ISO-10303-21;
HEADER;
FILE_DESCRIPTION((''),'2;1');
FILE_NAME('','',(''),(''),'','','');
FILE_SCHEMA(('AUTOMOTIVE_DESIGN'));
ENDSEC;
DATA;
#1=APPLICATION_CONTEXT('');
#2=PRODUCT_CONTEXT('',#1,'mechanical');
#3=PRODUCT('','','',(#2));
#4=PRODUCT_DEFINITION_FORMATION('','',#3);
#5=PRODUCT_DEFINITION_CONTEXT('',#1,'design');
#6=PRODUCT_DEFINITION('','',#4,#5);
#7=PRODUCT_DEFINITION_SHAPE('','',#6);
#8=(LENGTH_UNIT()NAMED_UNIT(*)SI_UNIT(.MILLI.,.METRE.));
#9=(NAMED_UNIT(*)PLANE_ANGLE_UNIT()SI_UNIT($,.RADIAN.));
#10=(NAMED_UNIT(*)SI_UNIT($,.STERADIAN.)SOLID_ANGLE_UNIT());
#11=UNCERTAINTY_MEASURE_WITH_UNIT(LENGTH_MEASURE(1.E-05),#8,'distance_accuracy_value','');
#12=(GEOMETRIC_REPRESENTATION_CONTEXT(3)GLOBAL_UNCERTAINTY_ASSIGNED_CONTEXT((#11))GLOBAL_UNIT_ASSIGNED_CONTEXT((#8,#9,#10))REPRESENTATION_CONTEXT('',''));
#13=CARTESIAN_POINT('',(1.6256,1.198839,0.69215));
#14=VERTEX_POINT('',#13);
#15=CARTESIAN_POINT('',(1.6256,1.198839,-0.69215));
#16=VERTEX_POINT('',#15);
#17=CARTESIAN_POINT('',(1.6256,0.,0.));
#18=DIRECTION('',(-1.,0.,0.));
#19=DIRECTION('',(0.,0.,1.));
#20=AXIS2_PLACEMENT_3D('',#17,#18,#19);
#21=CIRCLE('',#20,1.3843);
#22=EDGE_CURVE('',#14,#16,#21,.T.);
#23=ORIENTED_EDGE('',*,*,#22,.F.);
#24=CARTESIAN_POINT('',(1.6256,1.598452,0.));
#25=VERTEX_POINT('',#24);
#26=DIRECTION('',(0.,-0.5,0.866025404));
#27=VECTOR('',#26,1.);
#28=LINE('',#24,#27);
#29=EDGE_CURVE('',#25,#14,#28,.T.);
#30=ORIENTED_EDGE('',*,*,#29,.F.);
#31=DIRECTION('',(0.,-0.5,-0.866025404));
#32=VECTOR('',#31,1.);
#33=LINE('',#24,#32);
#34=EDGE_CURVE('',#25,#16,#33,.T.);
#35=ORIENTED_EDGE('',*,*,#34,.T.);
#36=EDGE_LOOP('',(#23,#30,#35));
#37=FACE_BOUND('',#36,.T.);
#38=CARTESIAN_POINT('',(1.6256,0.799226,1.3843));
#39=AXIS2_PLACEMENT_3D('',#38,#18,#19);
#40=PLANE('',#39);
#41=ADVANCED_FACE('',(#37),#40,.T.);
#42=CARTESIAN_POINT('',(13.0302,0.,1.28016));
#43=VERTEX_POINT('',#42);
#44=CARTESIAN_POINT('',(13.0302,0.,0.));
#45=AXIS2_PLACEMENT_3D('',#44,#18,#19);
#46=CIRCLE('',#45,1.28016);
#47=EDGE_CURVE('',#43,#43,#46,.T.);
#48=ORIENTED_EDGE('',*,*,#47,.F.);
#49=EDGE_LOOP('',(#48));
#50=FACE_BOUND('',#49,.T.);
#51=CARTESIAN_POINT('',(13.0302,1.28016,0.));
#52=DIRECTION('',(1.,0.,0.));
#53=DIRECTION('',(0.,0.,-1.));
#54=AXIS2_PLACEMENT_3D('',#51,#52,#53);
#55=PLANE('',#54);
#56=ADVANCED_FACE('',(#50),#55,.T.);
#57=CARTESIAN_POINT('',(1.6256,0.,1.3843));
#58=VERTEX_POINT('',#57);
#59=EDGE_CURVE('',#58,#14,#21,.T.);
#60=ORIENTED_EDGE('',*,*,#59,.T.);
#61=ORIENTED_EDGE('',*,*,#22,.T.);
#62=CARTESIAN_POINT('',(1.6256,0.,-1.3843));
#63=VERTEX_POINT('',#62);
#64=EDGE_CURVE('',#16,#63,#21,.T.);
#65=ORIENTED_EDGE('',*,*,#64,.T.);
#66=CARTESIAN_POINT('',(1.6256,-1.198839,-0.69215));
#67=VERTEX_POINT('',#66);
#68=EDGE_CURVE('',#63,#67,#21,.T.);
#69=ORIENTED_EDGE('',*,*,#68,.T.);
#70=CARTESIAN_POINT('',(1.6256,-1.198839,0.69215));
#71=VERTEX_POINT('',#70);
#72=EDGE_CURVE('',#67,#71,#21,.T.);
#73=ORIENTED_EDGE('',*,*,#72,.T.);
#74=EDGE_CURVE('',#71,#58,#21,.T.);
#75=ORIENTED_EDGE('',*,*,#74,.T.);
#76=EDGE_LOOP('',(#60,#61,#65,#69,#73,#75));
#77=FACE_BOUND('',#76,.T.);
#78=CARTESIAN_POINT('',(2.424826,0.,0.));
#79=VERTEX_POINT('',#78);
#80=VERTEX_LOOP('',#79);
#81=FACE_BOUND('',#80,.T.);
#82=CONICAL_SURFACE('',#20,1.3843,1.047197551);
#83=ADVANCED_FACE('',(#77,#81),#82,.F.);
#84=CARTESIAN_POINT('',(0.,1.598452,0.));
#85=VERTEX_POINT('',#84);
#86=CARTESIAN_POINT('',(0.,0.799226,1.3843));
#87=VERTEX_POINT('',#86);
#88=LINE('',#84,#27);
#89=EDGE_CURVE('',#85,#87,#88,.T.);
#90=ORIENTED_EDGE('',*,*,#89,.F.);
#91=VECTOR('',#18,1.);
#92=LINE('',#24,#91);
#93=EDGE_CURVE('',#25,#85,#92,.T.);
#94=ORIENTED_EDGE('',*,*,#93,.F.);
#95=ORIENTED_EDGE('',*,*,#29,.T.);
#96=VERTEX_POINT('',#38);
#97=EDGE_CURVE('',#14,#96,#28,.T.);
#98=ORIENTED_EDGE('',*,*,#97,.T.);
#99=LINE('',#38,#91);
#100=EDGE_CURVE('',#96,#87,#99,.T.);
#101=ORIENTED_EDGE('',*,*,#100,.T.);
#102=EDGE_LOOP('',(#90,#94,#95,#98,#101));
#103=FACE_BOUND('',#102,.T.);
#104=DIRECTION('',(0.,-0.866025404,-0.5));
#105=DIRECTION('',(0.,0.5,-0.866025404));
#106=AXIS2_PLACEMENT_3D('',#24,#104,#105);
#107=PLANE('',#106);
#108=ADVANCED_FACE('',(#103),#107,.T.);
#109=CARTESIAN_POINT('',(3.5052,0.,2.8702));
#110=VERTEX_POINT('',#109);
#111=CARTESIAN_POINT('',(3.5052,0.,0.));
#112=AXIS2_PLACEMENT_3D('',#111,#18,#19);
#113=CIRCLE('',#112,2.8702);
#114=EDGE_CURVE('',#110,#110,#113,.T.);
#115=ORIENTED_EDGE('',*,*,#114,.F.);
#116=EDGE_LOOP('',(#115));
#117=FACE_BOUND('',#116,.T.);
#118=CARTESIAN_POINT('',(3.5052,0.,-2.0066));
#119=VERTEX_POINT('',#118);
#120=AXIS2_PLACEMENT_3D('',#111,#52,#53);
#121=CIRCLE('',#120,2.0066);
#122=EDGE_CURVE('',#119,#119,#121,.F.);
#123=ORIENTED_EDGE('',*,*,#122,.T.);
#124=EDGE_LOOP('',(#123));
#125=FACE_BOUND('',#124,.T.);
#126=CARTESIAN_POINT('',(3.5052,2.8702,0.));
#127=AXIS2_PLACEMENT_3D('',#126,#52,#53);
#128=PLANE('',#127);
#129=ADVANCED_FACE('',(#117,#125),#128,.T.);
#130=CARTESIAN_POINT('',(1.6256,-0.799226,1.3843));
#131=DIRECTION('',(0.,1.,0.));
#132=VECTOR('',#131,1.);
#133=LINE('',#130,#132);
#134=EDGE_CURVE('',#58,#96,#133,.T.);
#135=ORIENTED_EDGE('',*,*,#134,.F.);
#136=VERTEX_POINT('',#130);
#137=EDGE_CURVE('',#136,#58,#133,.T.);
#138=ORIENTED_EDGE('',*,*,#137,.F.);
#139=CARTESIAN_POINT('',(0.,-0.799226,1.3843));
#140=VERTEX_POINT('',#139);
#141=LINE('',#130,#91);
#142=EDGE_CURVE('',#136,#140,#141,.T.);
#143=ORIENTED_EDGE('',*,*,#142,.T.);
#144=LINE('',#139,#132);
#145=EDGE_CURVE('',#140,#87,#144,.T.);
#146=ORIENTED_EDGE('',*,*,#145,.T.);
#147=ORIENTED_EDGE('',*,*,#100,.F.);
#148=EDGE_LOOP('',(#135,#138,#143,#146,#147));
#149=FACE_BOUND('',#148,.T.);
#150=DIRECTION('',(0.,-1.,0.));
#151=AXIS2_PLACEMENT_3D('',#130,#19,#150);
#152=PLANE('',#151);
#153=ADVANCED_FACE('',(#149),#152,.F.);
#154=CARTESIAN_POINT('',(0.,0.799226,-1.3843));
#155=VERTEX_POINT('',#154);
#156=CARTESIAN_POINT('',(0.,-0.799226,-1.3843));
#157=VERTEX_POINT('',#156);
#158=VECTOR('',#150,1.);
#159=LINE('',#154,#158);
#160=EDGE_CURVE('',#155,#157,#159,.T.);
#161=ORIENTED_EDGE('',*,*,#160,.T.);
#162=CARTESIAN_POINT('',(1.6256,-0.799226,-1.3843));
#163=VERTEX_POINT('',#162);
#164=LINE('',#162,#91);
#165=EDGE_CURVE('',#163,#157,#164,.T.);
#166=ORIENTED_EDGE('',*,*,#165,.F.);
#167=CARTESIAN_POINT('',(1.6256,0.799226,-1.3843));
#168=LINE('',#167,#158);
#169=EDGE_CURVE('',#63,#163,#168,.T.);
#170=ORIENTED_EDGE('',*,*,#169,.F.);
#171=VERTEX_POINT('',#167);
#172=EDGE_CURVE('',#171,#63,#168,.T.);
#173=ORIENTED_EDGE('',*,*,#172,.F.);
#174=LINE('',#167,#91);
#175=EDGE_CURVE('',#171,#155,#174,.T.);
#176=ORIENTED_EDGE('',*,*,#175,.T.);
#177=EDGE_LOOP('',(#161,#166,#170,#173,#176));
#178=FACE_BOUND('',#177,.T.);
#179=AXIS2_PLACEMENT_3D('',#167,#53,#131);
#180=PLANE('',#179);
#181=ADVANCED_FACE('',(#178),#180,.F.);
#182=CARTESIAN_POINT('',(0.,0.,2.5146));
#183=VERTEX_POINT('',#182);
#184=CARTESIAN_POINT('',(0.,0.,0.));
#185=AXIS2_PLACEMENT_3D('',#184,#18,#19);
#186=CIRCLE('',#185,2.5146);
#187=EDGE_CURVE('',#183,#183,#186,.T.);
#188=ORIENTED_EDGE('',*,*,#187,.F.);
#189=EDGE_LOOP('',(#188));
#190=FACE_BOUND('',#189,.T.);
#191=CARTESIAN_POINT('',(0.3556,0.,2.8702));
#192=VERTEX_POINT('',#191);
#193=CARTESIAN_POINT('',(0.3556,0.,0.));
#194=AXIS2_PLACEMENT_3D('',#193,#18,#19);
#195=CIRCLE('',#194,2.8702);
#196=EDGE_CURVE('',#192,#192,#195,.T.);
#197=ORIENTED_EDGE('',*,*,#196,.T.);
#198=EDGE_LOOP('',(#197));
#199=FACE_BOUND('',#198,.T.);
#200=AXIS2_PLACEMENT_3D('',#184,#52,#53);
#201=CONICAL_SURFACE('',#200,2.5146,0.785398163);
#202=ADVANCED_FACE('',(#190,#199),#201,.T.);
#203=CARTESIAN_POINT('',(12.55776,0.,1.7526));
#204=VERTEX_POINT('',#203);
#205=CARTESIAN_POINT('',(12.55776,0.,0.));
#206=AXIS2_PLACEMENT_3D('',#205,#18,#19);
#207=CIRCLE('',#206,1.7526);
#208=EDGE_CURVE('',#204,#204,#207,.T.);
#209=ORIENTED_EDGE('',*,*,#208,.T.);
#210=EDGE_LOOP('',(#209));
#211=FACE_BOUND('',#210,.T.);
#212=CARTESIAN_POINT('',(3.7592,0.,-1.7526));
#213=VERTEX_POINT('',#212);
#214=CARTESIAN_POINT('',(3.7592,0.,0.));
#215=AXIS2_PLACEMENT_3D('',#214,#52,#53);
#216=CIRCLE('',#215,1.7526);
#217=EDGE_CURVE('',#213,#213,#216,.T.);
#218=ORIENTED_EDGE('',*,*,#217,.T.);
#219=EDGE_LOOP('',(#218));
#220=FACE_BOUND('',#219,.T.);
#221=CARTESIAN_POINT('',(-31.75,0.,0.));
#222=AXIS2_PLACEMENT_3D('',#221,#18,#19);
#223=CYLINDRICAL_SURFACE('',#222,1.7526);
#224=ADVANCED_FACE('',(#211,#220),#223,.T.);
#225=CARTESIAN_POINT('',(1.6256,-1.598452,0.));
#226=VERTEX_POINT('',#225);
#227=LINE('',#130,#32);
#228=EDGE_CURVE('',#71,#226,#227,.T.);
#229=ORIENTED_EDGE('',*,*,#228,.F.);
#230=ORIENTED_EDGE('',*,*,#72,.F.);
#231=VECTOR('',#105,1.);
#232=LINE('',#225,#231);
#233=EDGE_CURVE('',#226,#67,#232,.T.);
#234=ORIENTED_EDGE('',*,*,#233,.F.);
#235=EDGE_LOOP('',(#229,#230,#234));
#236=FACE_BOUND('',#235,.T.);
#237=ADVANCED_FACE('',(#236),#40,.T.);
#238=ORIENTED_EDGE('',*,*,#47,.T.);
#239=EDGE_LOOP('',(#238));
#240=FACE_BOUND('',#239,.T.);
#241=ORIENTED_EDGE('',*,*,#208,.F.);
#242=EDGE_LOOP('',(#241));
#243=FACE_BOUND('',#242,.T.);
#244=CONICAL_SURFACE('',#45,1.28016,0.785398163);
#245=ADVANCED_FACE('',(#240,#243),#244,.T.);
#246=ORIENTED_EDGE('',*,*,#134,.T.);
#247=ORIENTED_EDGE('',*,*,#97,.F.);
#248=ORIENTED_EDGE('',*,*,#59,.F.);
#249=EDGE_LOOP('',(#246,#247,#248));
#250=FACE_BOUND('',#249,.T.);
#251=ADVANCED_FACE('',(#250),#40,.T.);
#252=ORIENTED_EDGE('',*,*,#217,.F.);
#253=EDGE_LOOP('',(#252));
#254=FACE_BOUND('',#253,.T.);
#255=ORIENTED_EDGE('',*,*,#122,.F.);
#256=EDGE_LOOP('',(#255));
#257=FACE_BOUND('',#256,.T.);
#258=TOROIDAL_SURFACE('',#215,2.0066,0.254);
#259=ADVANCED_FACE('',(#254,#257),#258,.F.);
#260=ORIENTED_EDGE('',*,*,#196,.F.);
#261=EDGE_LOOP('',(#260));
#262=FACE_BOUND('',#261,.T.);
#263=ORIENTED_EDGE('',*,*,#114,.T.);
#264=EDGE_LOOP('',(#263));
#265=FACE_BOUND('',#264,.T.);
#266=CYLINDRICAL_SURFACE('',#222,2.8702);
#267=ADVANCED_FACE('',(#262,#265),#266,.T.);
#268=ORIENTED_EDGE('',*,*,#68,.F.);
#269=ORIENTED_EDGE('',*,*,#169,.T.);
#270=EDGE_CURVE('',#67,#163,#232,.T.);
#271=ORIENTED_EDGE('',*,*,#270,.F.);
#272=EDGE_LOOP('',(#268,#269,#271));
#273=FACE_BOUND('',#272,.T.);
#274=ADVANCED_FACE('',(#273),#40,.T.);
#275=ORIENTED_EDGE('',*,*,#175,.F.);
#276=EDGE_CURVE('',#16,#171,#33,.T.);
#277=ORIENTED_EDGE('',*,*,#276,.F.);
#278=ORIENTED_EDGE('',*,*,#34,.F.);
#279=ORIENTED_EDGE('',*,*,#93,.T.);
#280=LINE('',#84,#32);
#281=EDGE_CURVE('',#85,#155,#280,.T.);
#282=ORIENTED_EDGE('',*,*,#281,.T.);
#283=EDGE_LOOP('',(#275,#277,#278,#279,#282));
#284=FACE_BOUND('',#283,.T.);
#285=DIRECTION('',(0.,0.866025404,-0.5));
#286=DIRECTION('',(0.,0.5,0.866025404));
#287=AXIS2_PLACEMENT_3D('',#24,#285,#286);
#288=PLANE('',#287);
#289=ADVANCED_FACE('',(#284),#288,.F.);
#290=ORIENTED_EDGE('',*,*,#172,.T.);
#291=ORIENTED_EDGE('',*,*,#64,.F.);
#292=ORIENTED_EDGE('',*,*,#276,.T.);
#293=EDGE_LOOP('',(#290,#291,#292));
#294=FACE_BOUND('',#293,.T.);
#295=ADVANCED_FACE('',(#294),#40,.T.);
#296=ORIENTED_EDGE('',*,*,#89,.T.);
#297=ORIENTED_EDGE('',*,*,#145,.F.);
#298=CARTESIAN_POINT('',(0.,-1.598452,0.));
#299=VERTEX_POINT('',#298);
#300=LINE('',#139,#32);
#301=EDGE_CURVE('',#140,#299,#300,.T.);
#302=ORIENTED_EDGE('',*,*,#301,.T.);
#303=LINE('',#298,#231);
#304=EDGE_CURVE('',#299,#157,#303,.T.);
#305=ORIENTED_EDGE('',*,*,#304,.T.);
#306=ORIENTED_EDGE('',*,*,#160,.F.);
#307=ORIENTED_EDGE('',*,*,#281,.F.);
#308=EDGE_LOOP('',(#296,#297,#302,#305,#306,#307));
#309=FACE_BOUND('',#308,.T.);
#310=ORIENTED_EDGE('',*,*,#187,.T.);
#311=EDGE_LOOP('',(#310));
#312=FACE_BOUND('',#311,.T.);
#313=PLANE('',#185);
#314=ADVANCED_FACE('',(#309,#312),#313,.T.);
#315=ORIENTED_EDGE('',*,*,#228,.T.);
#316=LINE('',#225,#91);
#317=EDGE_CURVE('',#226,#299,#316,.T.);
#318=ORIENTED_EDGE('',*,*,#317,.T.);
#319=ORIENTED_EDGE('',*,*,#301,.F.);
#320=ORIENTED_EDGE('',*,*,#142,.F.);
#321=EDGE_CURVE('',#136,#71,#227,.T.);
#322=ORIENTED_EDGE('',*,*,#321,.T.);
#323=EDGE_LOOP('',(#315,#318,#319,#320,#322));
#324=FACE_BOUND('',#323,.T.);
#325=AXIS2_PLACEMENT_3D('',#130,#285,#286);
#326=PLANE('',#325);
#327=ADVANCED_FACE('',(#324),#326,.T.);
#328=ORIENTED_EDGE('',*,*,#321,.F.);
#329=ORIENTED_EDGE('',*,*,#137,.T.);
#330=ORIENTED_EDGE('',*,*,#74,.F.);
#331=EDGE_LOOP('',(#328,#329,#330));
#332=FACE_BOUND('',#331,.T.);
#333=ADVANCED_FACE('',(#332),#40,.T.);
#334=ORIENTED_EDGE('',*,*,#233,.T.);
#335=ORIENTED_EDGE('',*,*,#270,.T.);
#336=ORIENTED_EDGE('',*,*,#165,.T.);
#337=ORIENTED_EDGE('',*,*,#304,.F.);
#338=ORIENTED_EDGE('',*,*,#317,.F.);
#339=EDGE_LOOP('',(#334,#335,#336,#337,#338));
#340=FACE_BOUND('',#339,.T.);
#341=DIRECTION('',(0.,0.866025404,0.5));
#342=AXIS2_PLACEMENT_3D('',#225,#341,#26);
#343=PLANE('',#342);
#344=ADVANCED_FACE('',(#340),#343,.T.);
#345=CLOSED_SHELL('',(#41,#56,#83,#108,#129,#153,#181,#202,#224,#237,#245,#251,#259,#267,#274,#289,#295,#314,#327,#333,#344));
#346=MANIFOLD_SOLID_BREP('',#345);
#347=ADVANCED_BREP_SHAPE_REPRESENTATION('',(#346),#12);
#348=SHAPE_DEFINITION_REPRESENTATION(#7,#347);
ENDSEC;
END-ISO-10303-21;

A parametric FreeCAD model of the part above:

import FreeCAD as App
import Part
import Sketcher
from FreeCAD import Vector
Q = App.Units.Quantity


def edges_at(feature, points):
    """Names of the edges that pass closest to the given points."""
    edges = feature.Shape.Edges
    near = lambda p: min(range(len(edges)), key=lambda i: edges[i].distToShape(Part.Vertex(*p))[0])
    return sorted({f"Edge{near(p) + 1}" for p in points})


def add_polygon(sketch, points):
    """Adds a closed chain of lines whose ends are joined by coincident constraints."""
    first, n = sketch.GeometryCount, len(points)
    for a, b in zip(points, points[1:] + points[:1]):
        sketch.addGeometry(Part.LineSegment(App.Vector(*a, 0), App.Vector(*b, 0)), False)
    for i in range(n):
        sketch.addConstraint(Sketcher.Constraint("Coincident", first + i, 2, first + (i + 1) % n, 1))

doc = App.newDocument("Part")
body = doc.addObject("PartDesign::Body", "Body")

# Sketch on XY plane
sketch1 = body.newObject("Sketcher::SketchObject", "Sketch")
sketch1.AttachmentSupport = (doc.getObject("XY_Plane"), [""])
sketch1.MapMode = "FlatFace"
add_polygon(sketch1, [(0, 2.5), (0, 0), (13, 0), (13, 1.3), (12.6, 1.8), (3.5, 1.8), (3.5, 2.9), (0.4, 2.9)])  # lines 0-7
sketch1.addConstraint([
    Sketcher.Constraint("Vertical", 0),
    Sketcher.Constraint("Horizontal", 1),
    Sketcher.Constraint("Vertical", 2),
    Sketcher.Constraint("Horizontal", 4),
    Sketcher.Constraint("Vertical", 5),
    Sketcher.Constraint("Horizontal", 6),
    Sketcher.Constraint("Coincident", 0, 2, -1, 1),
    Sketcher.Constraint("Perpendicular", 3, 7),
    Sketcher.Constraint("Angle", 3, Q("135 deg")),
    Sketcher.Constraint("DistanceX", 1, 1, 1, 2, Q("0.513 in")),
    Sketcher.Constraint("DistanceX", 6, 2, 6, 1, Q("0.124 in")),
    Sketcher.Constraint("DistanceY", 0, 2, 0, 1, Q("0.099 in")),
    Sketcher.Constraint("DistanceY", 5, 1, 5, 2, Q("0.044 in")),
    Sketcher.Constraint("DistanceY", 4, 2, 7, 2, Q("0.03 in")),
    Sketcher.Constraint("DistanceX", 4, 2, 4, 1, Q("0.3564 in")),
])
revolution = body.newObject("PartDesign::Revolution", "Revolution")
revolution.Profile = sketch1
revolution.ReferenceAxis = (sketch1, ["H_Axis"])
revolution.Angle = 360
doc.recompute()

fillet = body.newObject("PartDesign::Fillet", "Fillet")
fillet.Base = (revolution, edges_at(revolution, [(3.505, 0, -1.753)]))
fillet.Radius = Q("0.01 in")

# Sketch on XY plane
sketch2 = body.newObject("Sketcher::SketchObject", "Sketch001")
sketch2.AttachmentSupport = (doc.getObject("XY_Plane"), [""])
sketch2.MapMode = "FlatFace"
add_polygon(sketch2, [(1.6, 1.4), (0, 1.4), (0, 0), (2.4, 0)])  # lines 0-3
sketch2.addConstraint([
    Sketcher.Constraint("Horizontal", 0),
    Sketcher.Constraint("Vertical", 1),
    Sketcher.Constraint("Horizontal", 2),
    Sketcher.Constraint("Coincident", 1, 2, -1, 1),
    Sketcher.Constraint("Angle", 3, Q("120 deg")),
    Sketcher.Constraint("DistanceX", 0, 2, 0, 1, Q("0.064 in")),
    Sketcher.Constraint("DistanceY", 1, 2, 1, 1, Q("0.0545 in")),
])
groove = body.newObject("PartDesign::Groove", "Groove")
groove.Profile = sketch2
groove.ReferenceAxis = (sketch2, ["H_Axis"])
groove.Angle = 360

# Sketch on YZ plane
sketch3 = body.newObject("Sketcher::SketchObject", "Sketch002")
sketch3.AttachmentSupport = (doc.getObject("YZ_Plane"), [""])
sketch3.MapMode = "FlatFace"
add_polygon(sketch3, [(1.6, 0), (0.8, -1.4), (-0.8, -1.4), (-1.6, 0), (-0.8, 1.4), (0.8, 1.4)])  # lines 0-5
sketch3.addConstraint([
    Sketcher.Constraint("Horizontal", 1),
    Sketcher.Constraint("Horizontal", 4),
    Sketcher.Constraint("Symmetric", 0, 2, 3, 2, -1, 1),
    Sketcher.Constraint("Symmetric", 2, 2, 5, 2, -1, 1),
    Sketcher.Constraint("PointOnObject", 2, 2, -1),
    Sketcher.Constraint("Parallel", 2, 5),
    Sketcher.Constraint("Vertical", 1, 2, 3, 2),
    Sketcher.Constraint("Angle", 0, Q("-120 deg")),
    Sketcher.Constraint("DistanceY", 1, 2, 3, 2, Q("0.109 in")),
    Sketcher.Constraint("DistanceX", 1, 2, 1, 1, 1.598452),
])
pocket1 = body.newObject("PartDesign::Pocket", "Pocket")
pocket1.Profile = sketch3
pocket1.Length = Q("0.064 in")
pocket1.Reversed = True

doc.recompute()
